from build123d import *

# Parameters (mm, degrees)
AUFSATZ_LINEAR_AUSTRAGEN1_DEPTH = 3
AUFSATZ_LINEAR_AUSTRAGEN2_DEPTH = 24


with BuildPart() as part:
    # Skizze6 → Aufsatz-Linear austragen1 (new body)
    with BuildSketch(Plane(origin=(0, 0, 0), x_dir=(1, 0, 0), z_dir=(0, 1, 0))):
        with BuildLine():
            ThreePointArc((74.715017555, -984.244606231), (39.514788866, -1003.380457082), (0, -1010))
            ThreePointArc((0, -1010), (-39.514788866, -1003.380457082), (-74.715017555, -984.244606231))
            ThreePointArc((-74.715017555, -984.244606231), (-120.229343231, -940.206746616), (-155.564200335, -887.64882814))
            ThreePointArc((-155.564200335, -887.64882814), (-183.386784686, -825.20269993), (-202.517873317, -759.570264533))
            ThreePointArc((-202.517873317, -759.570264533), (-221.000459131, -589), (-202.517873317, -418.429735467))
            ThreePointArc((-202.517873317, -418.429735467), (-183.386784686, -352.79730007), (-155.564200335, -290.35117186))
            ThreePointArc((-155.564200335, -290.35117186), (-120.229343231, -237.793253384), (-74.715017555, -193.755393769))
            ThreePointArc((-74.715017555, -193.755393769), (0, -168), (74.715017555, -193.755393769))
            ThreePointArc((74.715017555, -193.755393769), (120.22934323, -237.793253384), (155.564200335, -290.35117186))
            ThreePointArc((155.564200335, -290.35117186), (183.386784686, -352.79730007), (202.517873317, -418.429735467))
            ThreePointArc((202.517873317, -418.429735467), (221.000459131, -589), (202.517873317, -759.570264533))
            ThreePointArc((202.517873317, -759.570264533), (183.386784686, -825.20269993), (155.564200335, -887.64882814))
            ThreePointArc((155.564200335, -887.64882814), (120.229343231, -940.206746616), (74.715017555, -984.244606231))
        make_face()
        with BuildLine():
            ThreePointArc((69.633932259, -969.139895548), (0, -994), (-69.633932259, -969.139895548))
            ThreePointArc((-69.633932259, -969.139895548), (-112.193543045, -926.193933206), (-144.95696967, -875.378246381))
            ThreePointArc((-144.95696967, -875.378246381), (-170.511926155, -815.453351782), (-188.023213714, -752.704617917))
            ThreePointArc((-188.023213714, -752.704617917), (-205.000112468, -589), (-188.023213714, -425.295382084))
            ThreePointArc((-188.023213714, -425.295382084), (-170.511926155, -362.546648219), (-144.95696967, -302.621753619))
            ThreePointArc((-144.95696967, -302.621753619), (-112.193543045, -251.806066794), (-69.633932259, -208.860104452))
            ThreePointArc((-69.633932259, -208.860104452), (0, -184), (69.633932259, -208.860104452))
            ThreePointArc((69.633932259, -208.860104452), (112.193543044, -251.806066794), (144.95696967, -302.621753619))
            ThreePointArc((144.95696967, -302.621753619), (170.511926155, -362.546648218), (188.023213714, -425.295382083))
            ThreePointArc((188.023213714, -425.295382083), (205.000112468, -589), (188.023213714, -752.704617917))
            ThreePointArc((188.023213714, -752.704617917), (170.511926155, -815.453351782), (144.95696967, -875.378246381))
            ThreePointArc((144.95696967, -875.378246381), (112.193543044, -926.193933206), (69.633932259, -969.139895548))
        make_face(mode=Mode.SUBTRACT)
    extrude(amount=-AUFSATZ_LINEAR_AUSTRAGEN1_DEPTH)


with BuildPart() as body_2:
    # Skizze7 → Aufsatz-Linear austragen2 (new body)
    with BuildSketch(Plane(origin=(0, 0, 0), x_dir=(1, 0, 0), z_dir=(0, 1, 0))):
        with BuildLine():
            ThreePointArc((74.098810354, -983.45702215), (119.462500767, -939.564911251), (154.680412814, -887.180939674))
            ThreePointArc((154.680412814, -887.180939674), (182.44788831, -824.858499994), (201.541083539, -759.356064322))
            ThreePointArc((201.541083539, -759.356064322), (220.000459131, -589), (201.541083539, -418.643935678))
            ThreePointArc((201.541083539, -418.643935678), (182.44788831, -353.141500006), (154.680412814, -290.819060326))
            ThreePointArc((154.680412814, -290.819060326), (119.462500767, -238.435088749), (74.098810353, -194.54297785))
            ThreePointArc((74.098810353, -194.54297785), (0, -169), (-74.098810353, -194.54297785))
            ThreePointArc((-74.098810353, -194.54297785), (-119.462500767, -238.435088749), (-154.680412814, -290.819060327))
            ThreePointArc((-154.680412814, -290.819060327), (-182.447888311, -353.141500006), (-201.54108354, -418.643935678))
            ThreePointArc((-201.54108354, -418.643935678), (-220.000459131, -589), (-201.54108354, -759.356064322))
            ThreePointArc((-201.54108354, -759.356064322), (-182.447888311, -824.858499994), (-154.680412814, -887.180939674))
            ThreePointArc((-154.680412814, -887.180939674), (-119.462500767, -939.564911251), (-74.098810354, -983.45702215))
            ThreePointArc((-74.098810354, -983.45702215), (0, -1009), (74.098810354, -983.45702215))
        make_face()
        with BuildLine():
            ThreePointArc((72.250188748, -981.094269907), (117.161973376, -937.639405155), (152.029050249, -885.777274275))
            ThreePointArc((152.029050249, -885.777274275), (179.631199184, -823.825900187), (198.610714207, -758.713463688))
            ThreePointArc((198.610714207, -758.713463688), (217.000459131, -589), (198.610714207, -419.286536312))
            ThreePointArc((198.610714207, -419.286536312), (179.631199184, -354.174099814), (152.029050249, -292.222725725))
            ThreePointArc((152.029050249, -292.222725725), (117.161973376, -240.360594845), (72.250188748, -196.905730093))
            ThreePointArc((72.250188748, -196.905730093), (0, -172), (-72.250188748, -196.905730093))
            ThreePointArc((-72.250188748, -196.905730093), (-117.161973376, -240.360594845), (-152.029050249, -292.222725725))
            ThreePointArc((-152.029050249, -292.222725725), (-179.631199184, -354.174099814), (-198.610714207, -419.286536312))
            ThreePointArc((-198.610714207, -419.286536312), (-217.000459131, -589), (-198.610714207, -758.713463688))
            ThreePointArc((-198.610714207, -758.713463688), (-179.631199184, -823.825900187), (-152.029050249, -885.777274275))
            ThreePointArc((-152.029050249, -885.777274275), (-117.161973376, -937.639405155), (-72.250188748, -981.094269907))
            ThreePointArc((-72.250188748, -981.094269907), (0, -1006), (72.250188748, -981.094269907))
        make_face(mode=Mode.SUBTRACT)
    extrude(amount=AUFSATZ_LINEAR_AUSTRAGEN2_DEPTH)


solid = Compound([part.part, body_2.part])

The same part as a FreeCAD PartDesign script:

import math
import FreeCAD as App
import Part
import Sketcher

V = App.Vector
Q = App.Units.Quantity

doc = App.newDocument("Part")
body = doc.addObject("PartDesign::Body", "Body")

# Sketch on XZ plane
sketch1 = body.newObject("Sketcher::SketchObject", "Sketch")
sketch1.AttachmentSupport = (doc.getObject("XZ_Plane"), [""])
sketch1.MapMode = "FlatFace"
sketch1.addGeometry([
    Part.ArcOfCircle(Part.Circle(V(0, 889, 0), V(0, 0, 1), 121), math.radians(52), math.radians(90)),  # 0
    Part.ArcOfCircle(Part.Circle(V(-111, 746, 0), V(0, 0, 1), 302), math.radians(28), math.radians(52)),  # 1
    Part.ArcOfCircle(Part.Circle(V(-291, 651, 0), V(0, 0, 1), 505), math.radians(12.37), math.radians(27.9)),  # 2
    Part.ArcOfCircle(Part.Circle(V(-575, 589, 0), V(0, 0, 1), 796), math.radians(-12), math.radians(12)),  # 3
    Part.ArcOfCircle(Part.Circle(V(-291, 527, 0), V(0, 0, 1), 505), math.radians(-27.9), math.radians(-12.37)),  # 4
    Part.ArcOfCircle(Part.Circle(V(-111, 432, 0), V(0, 0, 1), 302), math.radians(-52), math.radians(-28)),  # 5
    Part.ArcOfCircle(Part.Circle(V(0, 289, 0), V(0, 0, 1), 121), math.radians(-128), math.radians(-52)),  # 6
    Part.ArcOfCircle(Part.Circle(V(111, 432, 0), V(0, 0, 1), 302), math.radians(-152), math.radians(-128)),  # 7
    Part.ArcOfCircle(Part.Circle(V(291, 527, 0), V(0, 0, 1), 505), math.radians(-167.63), math.radians(-152.1)),  # 8
    Part.ArcOfCircle(Part.Circle(V(575, 589, 0), V(0, 0, 1), 796), math.radians(168), math.radians(192)),  # 9
    Part.ArcOfCircle(Part.Circle(V(291, 651, 0), V(0, 0, 1), 505), math.radians(152.1), math.radians(167.63)),  # 10
    Part.ArcOfCircle(Part.Circle(V(111, 746, 0), V(0, 0, 1), 302), math.radians(128), math.radians(152)),  # 11
    Part.ArcOfCircle(Part.Circle(V(0, 889, 0), V(0, 0, 1), 121), math.radians(90), math.radians(128)),  # 12
    Part.ArcOfCircle(Part.Circle(V(0, 884, 0), V(0, 0, 1), 110), math.radians(51), math.radians(129)),  # 13
    Part.ArcOfCircle(Part.Circle(V(115, 744, 0), V(0, 0, 1), 291), math.radians(129), math.radians(153)),  # 14
    Part.ArcOfCircle(Part.Circle(V(299, 651, 0), V(0, 0, 1), 498), math.radians(153.15), math.radians(168.16)),  # 15
    Part.ArcOfCircle(Part.Circle(V(593, 589, 0), V(0, 0, 1), 798), math.radians(168), math.radians(192)),  # 16
    Part.ArcOfCircle(Part.Circle(V(299, 527, 0), V(0, 0, 1), 498), math.radians(-168.16), math.radians(-153.15)),  # 17
    Part.ArcOfCircle(Part.Circle(V(115, 434, 0), V(0, 0, 1), 291), math.radians(-153), math.radians(-129)),  # 18
    Part.ArcOfCircle(Part.Circle(V(0, 294, 0), V(0, 0, 1), 110), math.radians(-129), math.radians(-51)),  # 19
    Part.ArcOfCircle(Part.Circle(V(-115, 434, 0), V(0, 0, 1), 291), math.radians(-51), math.radians(-27)),  # 20
    Part.ArcOfCircle(Part.Circle(V(-299, 527, 0), V(0, 0, 1), 498), math.radians(-26.85), math.radians(-11.84)),  # 21
    Part.ArcOfCircle(Part.Circle(V(-593, 589, 0), V(0, 0, 1), 798), math.radians(-12), math.radians(12)),  # 22
    Part.ArcOfCircle(Part.Circle(V(-299, 651, 0), V(0, 0, 1), 498), math.radians(11.84), math.radians(26.85)),  # 23
    Part.ArcOfCircle(Part.Circle(V(-115, 744, 0), V(0, 0, 1), 291), math.radians(27), math.radians(51)),  # 24
], False)
sketch1.addConstraint([
    Sketcher.Constraint("Tangent", 0, 1, 1, 2),
    Sketcher.Constraint("Tangent", 1, 1, 2, 2),
    Sketcher.Constraint("Tangent", 2, 1, 3, 2),
    Sketcher.Constraint("Tangent", 3, 1, 4, 2),
    Sketcher.Constraint("Tangent", 4, 1, 5, 2),
    Sketcher.Constraint("Tangent", 5, 1, 6, 2),
    Sketcher.Constraint("Tangent", 6, 1, 7, 2),
    Sketcher.Constraint("Tangent", 7, 1, 8, 2),
    Sketcher.Constraint("Tangent", 8, 1, 9, 2),
    Sketcher.Constraint("Tangent", 9, 1, 10, 2),
    Sketcher.Constraint("Tangent", 10, 1, 11, 2),
    Sketcher.Constraint("Tangent", 11, 1, 12, 2),
    Sketcher.Constraint("Tangent", 12, 1, 0, 2),
    Sketcher.Constraint("Tangent", 13, 2, 14, 1),
    Sketcher.Constraint("Tangent", 14, 2, 15, 1),
    Sketcher.Constraint("Tangent", 15, 2, 16, 1),
    Sketcher.Constraint("Tangent", 16, 2, 17, 1),
    Sketcher.Constraint("Tangent", 17, 2, 18, 1),
    Sketcher.Constraint("Tangent", 18, 2, 19, 1),
    Sketcher.Constraint("Tangent", 19, 2, 20, 1),
    Sketcher.Constraint("Tangent", 20, 2, 21, 1),
    Sketcher.Constraint("Tangent", 21, 2, 22, 1),
    Sketcher.Constraint("Tangent", 22, 2, 23, 1),
    Sketcher.Constraint("Tangent", 23, 2, 24, 1),
    Sketcher.Constraint("Tangent", 24, 2, 13, 1),
    Sketcher.Constraint("Equal", 2, 4),
    Sketcher.Constraint("Equal", 1, 5),
    Sketcher.Constraint("Equal", 0, 6),
    Sketcher.Constraint("Equal", 5, 7),
    Sketcher.Constraint("Equal", 4, 8),
    Sketcher.Constraint("Equal", 3, 9),
    Sketcher.Constraint("Equal", 8, 10),
    Sketcher.Constraint("Equal", 7, 11),
    Sketcher.Constraint("Equal", 6, 12),
    Sketcher.Constraint("Equal", 15, 17),
    Sketcher.Constraint("Equal", 14, 18),
    Sketcher.Constraint("Equal", 13, 19),
    Sketcher.Constraint("Equal", 18, 20),
    Sketcher.Constraint("Equal", 17, 21),
    Sketcher.Constraint("Equal", 16, 22),
    Sketcher.Constraint("Equal", 21, 23),
    Sketcher.Constraint("Equal", 20, 24),
    Sketcher.Constraint("Symmetric", 5, 3, 7, 3, -2),
    Sketcher.Constraint("Symmetric", 3, 3, 9, 3, -2),
    Sketcher.Constraint("Symmetric", 1, 3, 11, 3, -2),
    Sketcher.Constraint("Symmetric", 18, 3, 20, 3, -2),
    Sketcher.Constraint("Symmetric", 16, 3, 22, 3, -2),
    Sketcher.Constraint("Symmetric", 14, 3, 24, 3, -2),
    Sketcher.Constraint("PointOnObject", 12, 1, -2),
    Sketcher.Constraint("Horizontal", 9, 3, 16, 3),
    Sketcher.Constraint("Vertical", 2, 3, 4, 3),
    Sketcher.Constraint("Vertical", 1, 3, 5, 3),
    Sketcher.Constraint("Vertical", 15, 3, 17, 3),
    Sketcher.Constraint("Vertical", 14, 3, 18, 3),
    Sketcher.Constraint("DistanceY", -1, 1, 3, 3, Q("589 mm")),
    Sketcher.Constraint("DistanceY", -1, 1, 12, 1, Q("1010 mm")),
    Sketcher.Constraint("Radius", 0, Q("121.249829 mm")),
    Sketcher.Constraint("Radius", 15, Q("497.838879 mm")),
    Sketcher.Constraint("Radius", 1, Q("302.149212 mm")),
    Sketcher.Constraint("Radius", 2, Q("504.865957 mm")),
    Sketcher.Constraint("Radius", 3, Q("796.312308 mm")),
    Sketcher.Constraint("Radius", 13, Q("109.953466 mm")),
    Sketcher.Constraint("Radius", 14, Q("290.924096 mm")),
    Sketcher.Constraint("Radius", 16, Q("797.772827 mm")),
    Sketcher.Constraint("DistanceX", -1, 1, 1, 1, Q("155.5642 mm")),
    Sketcher.Constraint("DistanceY", 2, 3, 0, 3, Q("237.322302 mm")),
    Sketcher.Constraint("DistanceX", -1, 1, 14, 3, Q("114.609361 mm")),
    Sketcher.Constraint("DistanceX", -1, 1, 15, 3, Q("299.221471 mm")),
    Sketcher.Constraint("DistanceY", -1, 1, 15, 3, Q("650.54706 mm")),
])
pad1 = body.newObject("PartDesign::Pad", "Pad")
pad1.Profile = sketch1
pad1.Length = 3
body2 = doc.addObject("PartDesign::Body", "Body001")

# Sketch on XZ plane
sketch2 = body2.newObject("Sketcher::SketchObject", "Sketch001")
sketch2.AttachmentSupport = (doc.getObject("XZ_Plane001"), [""])
sketch2.MapMode = "FlatFace"
sketch2.addGeometry([
    Part.ArcOfCircle(Part.Circle(V(-111, 746, 0), V(0, 0, 1), 301), math.radians(28), math.radians(52)),  # 0
    Part.ArcOfCircle(Part.Circle(V(-291, 651, 0), V(0, 0, 1), 504), math.radians(12.37), math.radians(27.9)),  # 1
    Part.ArcOfCircle(Part.Circle(V(-575, 589, 0), V(0, 0, 1), 795), math.radians(-12), math.radians(12)),  # 2
    Part.ArcOfCircle(Part.Circle(V(-291, 527, 0), V(0, 0, 1), 504), math.radians(-27.9), math.radians(-12.37)),  # 3
    Part.ArcOfCircle(Part.Circle(V(-111, 432, 0), V(0, 0, 1), 301), math.radians(-52), math.radians(-28)),  # 4
    Part.ArcOfCircle(Part.Circle(V(0, 289, 0), V(0, 0, 1), 120), math.radians(-128), math.radians(-52)),  # 5
    Part.ArcOfCircle(Part.Circle(V(111, 432, 0), V(0, 0, 1), 301), math.radians(-152), math.radians(-128)),  # 6
    Part.ArcOfCircle(Part.Circle(V(291, 527, 0), V(0, 0, 1), 504), math.radians(-167.63), math.radians(-152.1)),  # 7
    Part.ArcOfCircle(Part.Circle(V(575, 589, 0), V(0, 0, 1), 795), math.radians(168), math.radians(192)),  # 8
    Part.ArcOfCircle(Part.Circle(V(291, 651, 0), V(0, 0, 1), 504), math.radians(152.1), math.radians(167.63)),  # 9
    Part.ArcOfCircle(Part.Circle(V(111, 746, 0), V(0, 0, 1), 301), math.radians(128), math.radians(152)),  # 10
    Part.ArcOfCircle(Part.Circle(V(0, 889, 0), V(0, 0, 1), 120), math.radians(52), math.radians(128)),  # 11
    Part.ArcOfCircle(Part.Circle(V(-111, 746, 0), V(0, 0, 1), 298), math.radians(28), math.radians(52)),  # 12
    Part.ArcOfCircle(Part.Circle(V(0, 889, 0), V(0, 0, 1), 117), math.radians(52), math.radians(128)),  # 13
    Part.ArcOfCircle(Part.Circle(V(111, 746, 0), V(0, 0, 1), 298), math.radians(128), math.radians(152)),  # 14
    Part.ArcOfCircle(Part.Circle(V(291, 651, 0), V(0, 0, 1), 501), math.radians(152.1), math.radians(167.63)),  # 15
    Part.ArcOfCircle(Part.Circle(V(575, 589, 0), V(0, 0, 1), 792), math.radians(168), math.radians(192)),  # 16
    Part.ArcOfCircle(Part.Circle(V(291, 527, 0), V(0, 0, 1), 501), math.radians(-167.63), math.radians(-152.1)),  # 17
    Part.ArcOfCircle(Part.Circle(V(111, 432, 0), V(0, 0, 1), 298), math.radians(-152), math.radians(-128)),  # 18
    Part.ArcOfCircle(Part.Circle(V(0, 289, 0), V(0, 0, 1), 117), math.radians(-128), math.radians(-52)),  # 19
    Part.ArcOfCircle(Part.Circle(V(-111, 432, 0), V(0, 0, 1), 298), math.radians(-52), math.radians(-28)),  # 20
    Part.ArcOfCircle(Part.Circle(V(-291, 527, 0), V(0, 0, 1), 501), math.radians(-27.9), math.radians(-12.37)),  # 21
    Part.ArcOfCircle(Part.Circle(V(-575, 589, 0), V(0, 0, 1), 792), math.radians(-12), math.radians(12)),  # 22
    Part.ArcOfCircle(Part.Circle(V(-291, 651, 0), V(0, 0, 1), 501), math.radians(12.37), math.radians(27.9)),  # 23
], False)
sketch2.addConstraint([
    Sketcher.Constraint("Tangent", 0, 1, 1, 2),
    Sketcher.Constraint("Tangent", 1, 1, 2, 2),
    Sketcher.Constraint("Tangent", 2, 1, 3, 2),
    Sketcher.Constraint("Tangent", 3, 1, 4, 2),
    Sketcher.Constraint("Tangent", 4, 1, 5, 2),
    Sketcher.Constraint("Tangent", 5, 1, 6, 2),
    Sketcher.Constraint("Tangent", 6, 1, 7, 2),
    Sketcher.Constraint("Tangent", 7, 1, 8, 2),
    Sketcher.Constraint("Tangent", 8, 1, 9, 2),
    Sketcher.Constraint("Tangent", 9, 1, 10, 2),
    Sketcher.Constraint("Tangent", 10, 1, 11, 2),
    Sketcher.Constraint("Tangent", 11, 1, 0, 2),
    Sketcher.Constraint("Tangent", 12, 2, 13, 1),
    Sketcher.Constraint("Tangent", 13, 2, 14, 1),
    Sketcher.Constraint("Tangent", 14, 2, 15, 1),
    Sketcher.Constraint("Tangent", 15, 2, 16, 1),
    Sketcher.Constraint("Tangent", 16, 2, 17, 1),
    Sketcher.Constraint("Tangent", 17, 2, 18, 1),
    Sketcher.Constraint("Tangent", 18, 2, 19, 1),
    Sketcher.Constraint("Tangent", 19, 2, 20, 1),
    Sketcher.Constraint("Tangent", 20, 2, 21, 1),
    Sketcher.Constraint("Tangent", 21, 2, 22, 1),
    Sketcher.Constraint("Tangent", 22, 2, 23, 1),
    Sketcher.Constraint("Tangent", 23, 2, 12, 1),
    Sketcher.Constraint("Coincident", 12, 3, 0, 3),
    Sketcher.Constraint("Coincident", 13, 3, 11, 3),
    Sketcher.Constraint("Coincident", 14, 3, 10, 3),
    Sketcher.Constraint("Coincident", 15, 3, 9, 3),
    Sketcher.Constraint("Coincident", 16, 3, 8, 3),
    Sketcher.Constraint("Coincident", 17, 3, 7, 3),
    Sketcher.Constraint("Coincident", 18, 3, 6, 3),
    Sketcher.Constraint("Coincident", 19, 3, 5, 3),
    Sketcher.Constraint("Coincident", 20, 3, 4, 3),
    Sketcher.Constraint("Coincident", 21, 3, 3, 3),
    Sketcher.Constraint("Coincident", 22, 3, 2, 3),
    Sketcher.Constraint("Equal", 1, 3),
    Sketcher.Constraint("Equal", 0, 4),
    Sketcher.Constraint("Equal", 4, 6),
    Sketcher.Constraint("Equal", 3, 7),
    Sketcher.Constraint("Equal", 2, 8),
    Sketcher.Constraint("Equal", 7, 9),
    Sketcher.Constraint("Equal", 6, 10),
    Sketcher.Constraint("Equal", 5, 11),
    Sketcher.Constraint("Equal", 21, 23),
    Sketcher.Constraint("Symmetric", 4, 3, 6, 3, -2),
    Sketcher.Constraint("Symmetric", 2, 3, 8, 3, -2),
    Sketcher.Constraint("Symmetric", 0, 3, 10, 3, -2),
    Sketcher.Constraint("Vertical", 1, 3, 3, 3),
    Sketcher.Constraint("Vertical", 0, 3, 4, 3),
    Sketcher.Constraint("DistanceY", -1, 1, 2, 3, Q("589 mm")),
    Sketcher.Constraint("Radius", 5, Q("120.249829 mm")),
    Sketcher.Constraint("Radius", 13, Q("117.249829 mm")),
    Sketcher.Constraint("Radius", 0, Q("301.149212 mm")),
    Sketcher.Constraint("Radius", 1, Q("503.865957 mm")),
    Sketcher.Constraint("Radius", 2, Q("795.312308 mm")),
    Sketcher.Constraint("DistanceY", 5, 3, 3, 3, Q("237.322302 mm")),
    Sketcher.Constraint("DistanceY", -1, 1, 1, 3, Q("651.42787 mm")),
    Sketcher.Constraint("DistanceX", 2, 3, -1, 1, Q("575.311848 mm")),
])
pad2 = body2.newObject("PartDesign::Pad", "Pad001")
pad2.Profile = sketch2
pad2.Length = 24
pad2.Reversed = True

doc.recompute()
